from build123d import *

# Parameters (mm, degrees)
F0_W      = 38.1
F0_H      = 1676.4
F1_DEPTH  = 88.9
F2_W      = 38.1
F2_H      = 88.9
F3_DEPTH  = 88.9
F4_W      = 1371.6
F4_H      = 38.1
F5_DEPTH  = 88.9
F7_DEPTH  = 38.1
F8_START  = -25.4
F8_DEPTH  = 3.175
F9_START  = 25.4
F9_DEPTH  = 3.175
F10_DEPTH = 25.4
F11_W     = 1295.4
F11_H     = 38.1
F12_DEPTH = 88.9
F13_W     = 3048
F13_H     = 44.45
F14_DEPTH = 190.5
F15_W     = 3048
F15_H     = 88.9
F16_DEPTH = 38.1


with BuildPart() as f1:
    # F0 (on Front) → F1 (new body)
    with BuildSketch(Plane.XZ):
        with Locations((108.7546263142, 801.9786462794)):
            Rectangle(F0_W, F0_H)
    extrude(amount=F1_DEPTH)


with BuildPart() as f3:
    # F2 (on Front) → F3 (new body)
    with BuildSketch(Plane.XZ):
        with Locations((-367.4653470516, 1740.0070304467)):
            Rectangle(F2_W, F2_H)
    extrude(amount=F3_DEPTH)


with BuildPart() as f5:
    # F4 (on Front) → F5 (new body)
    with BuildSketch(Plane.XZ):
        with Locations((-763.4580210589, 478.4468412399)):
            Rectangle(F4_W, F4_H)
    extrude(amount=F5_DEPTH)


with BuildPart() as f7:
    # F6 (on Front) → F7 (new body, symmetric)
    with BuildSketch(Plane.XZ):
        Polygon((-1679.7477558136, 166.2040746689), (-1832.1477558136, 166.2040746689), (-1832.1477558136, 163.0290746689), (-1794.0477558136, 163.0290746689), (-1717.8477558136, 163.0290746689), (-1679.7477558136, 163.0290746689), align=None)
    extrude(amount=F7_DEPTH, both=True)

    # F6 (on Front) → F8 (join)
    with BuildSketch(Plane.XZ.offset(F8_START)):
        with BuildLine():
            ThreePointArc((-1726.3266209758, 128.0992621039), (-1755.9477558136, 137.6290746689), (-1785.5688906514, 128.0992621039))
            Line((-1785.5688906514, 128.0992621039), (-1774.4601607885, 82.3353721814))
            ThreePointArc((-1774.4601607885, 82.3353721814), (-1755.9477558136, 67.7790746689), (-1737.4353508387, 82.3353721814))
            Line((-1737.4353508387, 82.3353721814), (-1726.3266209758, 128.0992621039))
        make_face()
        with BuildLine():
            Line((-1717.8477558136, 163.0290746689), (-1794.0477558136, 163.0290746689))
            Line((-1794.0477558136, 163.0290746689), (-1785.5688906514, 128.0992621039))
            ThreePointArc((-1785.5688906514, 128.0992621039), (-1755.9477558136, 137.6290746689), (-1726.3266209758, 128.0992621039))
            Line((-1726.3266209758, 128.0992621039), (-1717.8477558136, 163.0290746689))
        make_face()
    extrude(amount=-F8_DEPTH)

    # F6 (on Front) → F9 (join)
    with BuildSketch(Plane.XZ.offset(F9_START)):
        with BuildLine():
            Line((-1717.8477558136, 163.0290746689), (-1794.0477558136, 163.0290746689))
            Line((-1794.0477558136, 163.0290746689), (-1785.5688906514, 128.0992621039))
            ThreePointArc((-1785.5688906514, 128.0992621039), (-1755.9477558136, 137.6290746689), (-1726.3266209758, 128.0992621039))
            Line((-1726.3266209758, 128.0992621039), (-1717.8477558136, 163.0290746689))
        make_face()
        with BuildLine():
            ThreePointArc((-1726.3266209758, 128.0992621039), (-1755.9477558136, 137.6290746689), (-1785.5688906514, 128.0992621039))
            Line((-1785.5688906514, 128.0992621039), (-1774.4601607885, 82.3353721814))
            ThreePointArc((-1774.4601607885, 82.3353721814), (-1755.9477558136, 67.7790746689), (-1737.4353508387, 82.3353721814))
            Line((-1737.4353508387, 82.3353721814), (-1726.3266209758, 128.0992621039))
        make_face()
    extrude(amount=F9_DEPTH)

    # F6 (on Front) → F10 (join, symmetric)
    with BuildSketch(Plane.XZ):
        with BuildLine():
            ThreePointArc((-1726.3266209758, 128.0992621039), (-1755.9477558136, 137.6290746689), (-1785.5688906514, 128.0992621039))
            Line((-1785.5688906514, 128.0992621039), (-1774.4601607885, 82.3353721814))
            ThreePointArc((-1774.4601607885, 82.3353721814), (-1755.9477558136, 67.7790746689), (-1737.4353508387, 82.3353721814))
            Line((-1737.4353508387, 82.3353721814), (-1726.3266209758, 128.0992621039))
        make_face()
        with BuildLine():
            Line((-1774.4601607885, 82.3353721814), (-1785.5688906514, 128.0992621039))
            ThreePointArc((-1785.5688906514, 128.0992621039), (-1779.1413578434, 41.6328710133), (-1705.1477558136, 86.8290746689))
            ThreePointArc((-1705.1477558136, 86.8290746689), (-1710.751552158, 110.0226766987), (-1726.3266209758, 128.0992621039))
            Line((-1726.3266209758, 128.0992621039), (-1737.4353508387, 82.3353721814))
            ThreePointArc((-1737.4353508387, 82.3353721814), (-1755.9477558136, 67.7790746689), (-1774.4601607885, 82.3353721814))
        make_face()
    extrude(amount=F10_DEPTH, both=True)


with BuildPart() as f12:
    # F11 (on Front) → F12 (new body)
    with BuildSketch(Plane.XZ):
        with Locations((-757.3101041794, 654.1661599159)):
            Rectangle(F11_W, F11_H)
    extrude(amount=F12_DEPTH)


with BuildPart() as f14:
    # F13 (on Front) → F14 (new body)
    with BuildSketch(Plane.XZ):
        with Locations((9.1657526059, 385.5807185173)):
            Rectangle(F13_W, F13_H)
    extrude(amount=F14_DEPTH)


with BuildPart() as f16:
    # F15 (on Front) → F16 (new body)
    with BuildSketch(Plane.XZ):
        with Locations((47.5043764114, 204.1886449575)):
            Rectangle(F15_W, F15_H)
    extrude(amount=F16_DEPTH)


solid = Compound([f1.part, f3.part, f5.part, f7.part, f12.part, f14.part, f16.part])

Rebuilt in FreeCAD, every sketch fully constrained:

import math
import FreeCAD as App
import Part
import Sketcher
from FreeCAD import Vector
Q = App.Units.Quantity

doc = App.newDocument("Part")
body = doc.addObject("PartDesign::Body", "Body")

sketch1 = doc.addObject("Sketcher::SketchObject", "Sketch")
body.addObject(sketch1)
sketch1.AttachmentSupport = (doc.XZ_Plane, [""])
sketch1.MapMode = "FlatFace"
sketch1.addGeometry(Part.LineSegment(Vector(89.704626, 1640.178646, 0), Vector(89.704626, -36.221354, 0)), False)
sketch1.addGeometry(Part.LineSegment(Vector(89.704626, -36.221354, 0), Vector(127.804626, -36.221354, 0)), False)
sketch1.addGeometry(Part.LineSegment(Vector(127.804626, -36.221354, 0), Vector(127.804626, 1640.178646, 0)), False)
sketch1.addGeometry(Part.LineSegment(Vector(127.804626, 1640.178646, 0), Vector(89.704626, 1640.178646, 0)), False)
sketch1.addConstraint(Sketcher.Constraint("Coincident", 0, 2, 1, 1))
sketch1.addConstraint(Sketcher.Constraint("Coincident", 1, 2, 2, 1))
sketch1.addConstraint(Sketcher.Constraint("Coincident", 2, 2, 3, 1))
sketch1.addConstraint(Sketcher.Constraint("Coincident", 3, 2, 0, 1))
sketch1.addConstraint(Sketcher.Constraint("Vertical", 0))
sketch1.addConstraint(Sketcher.Constraint("Horizontal", 1))
sketch1.addConstraint(Sketcher.Constraint("Vertical", 2))
sketch1.addConstraint(Sketcher.Constraint("Horizontal", 3))
sketch1.addConstraint(Sketcher.Constraint("DistanceY", 0, 2, 0, 1, Q("66 in")))
sketch1.addConstraint(Sketcher.Constraint("DistanceX", 1, 1, 1, 2, Q("1.5 in")))
sketch1.addConstraint(Sketcher.Constraint("DistanceX", -1, 1, 0, 2, 89.704626))
sketch1.addConstraint(Sketcher.Constraint("DistanceY", 0, 2, -1, 1, 36.221354))
pad1 = doc.addObject("PartDesign::Pad", "Pad")
body.addObject(pad1)
pad1.Profile = sketch1
pad1.Length = Q("3.5 in")
body2 = doc.addObject("PartDesign::Body", "Body001")

sketch2 = doc.addObject("Sketcher::SketchObject", "Sketch001")
body2.addObject(sketch2)
sketch2.AttachmentSupport = (doc.getObject("XZ_Plane001"), [""])
sketch2.MapMode = "FlatFace"
sketch2.addGeometry(Part.LineSegment(Vector(-386.515347, 1784.45703, 0), Vector(-386.515347, 1695.55703, 0)), False)
sketch2.addGeometry(Part.LineSegment(Vector(-386.515347, 1695.55703, 0), Vector(-348.415347, 1695.55703, 0)), False)
sketch2.addGeometry(Part.LineSegment(Vector(-348.415347, 1695.55703, 0), Vector(-348.415347, 1784.45703, 0)), False)
sketch2.addGeometry(Part.LineSegment(Vector(-348.415347, 1784.45703, 0), Vector(-386.515347, 1784.45703, 0)), False)
sketch2.addConstraint(Sketcher.Constraint("Coincident", 0, 2, 1, 1))
sketch2.addConstraint(Sketcher.Constraint("Coincident", 1, 2, 2, 1))
sketch2.addConstraint(Sketcher.Constraint("Coincident", 2, 2, 3, 1))
sketch2.addConstraint(Sketcher.Constraint("Coincident", 3, 2, 0, 1))
sketch2.addConstraint(Sketcher.Constraint("Vertical", 0))
sketch2.addConstraint(Sketcher.Constraint("Horizontal", 1))
sketch2.addConstraint(Sketcher.Constraint("Vertical", 2))
sketch2.addConstraint(Sketcher.Constraint("Horizontal", 3))
sketch2.addConstraint(Sketcher.Constraint("DistanceX", 1, 1, 1, 2, Q("1.5 in")))
sketch2.addConstraint(Sketcher.Constraint("DistanceY", 0, 2, 0, 1, Q("3.5 in")))
sketch2.addConstraint(Sketcher.Constraint("DistanceY", -1, 1, 0, 2, 1695.55703))
sketch2.addConstraint(Sketcher.Constraint("DistanceX", 0, 2, -1, 1, 386.515347))
pad2 = doc.addObject("PartDesign::Pad", "Pad001")
body2.addObject(pad2)
pad2.Profile = sketch2
pad2.Length = Q("3.5 in")
body3 = doc.addObject("PartDesign::Body", "Body002")

sketch3 = doc.addObject("Sketcher::SketchObject", "Sketch002")
body3.addObject(sketch3)
sketch3.AttachmentSupport = (doc.getObject("XZ_Plane002"), [""])
sketch3.MapMode = "FlatFace"
sketch3.addGeometry(Part.LineSegment(Vector(-1449.258021, 497.496841, 0), Vector(-1449.258021, 459.396841, 0)), False)
sketch3.addGeometry(Part.LineSegment(Vector(-1449.258021, 459.396841, 0), Vector(-77.658021, 459.396841, 0)), False)
sketch3.addGeometry(Part.LineSegment(Vector(-77.658021, 459.396841, 0), Vector(-77.658021, 497.496841, 0)), False)
sketch3.addGeometry(Part.LineSegment(Vector(-77.658021, 497.496841, 0), Vector(-1449.258021, 497.496841, 0)), False)
sketch3.addConstraint(Sketcher.Constraint("Coincident", 0, 2, 1, 1))
sketch3.addConstraint(Sketcher.Constraint("Coincident", 1, 2, 2, 1))
sketch3.addConstraint(Sketcher.Constraint("Coincident", 2, 2, 3, 1))
sketch3.addConstraint(Sketcher.Constraint("Coincident", 3, 2, 0, 1))
sketch3.addConstraint(Sketcher.Constraint("Vertical", 0))
sketch3.addConstraint(Sketcher.Constraint("Horizontal", 1))
sketch3.addConstraint(Sketcher.Constraint("Vertical", 2))
sketch3.addConstraint(Sketcher.Constraint("Horizontal", 3))
sketch3.addConstraint(Sketcher.Constraint("DistanceX", 1, 1, 1, 2, Q("54 in")))
sketch3.addConstraint(Sketcher.Constraint("DistanceY", 0, 2, 0, 1, Q("1.5 in")))
sketch3.addConstraint(Sketcher.Constraint("DistanceX", 0, 2, -1, 1, 1449.258021))
sketch3.addConstraint(Sketcher.Constraint("DistanceY", -1, 1, 0, 2, 459.396841))
pad3 = doc.addObject("PartDesign::Pad", "Pad002")
body3.addObject(pad3)
pad3.Profile = sketch3
pad3.Length = Q("3.5 in")
body4 = doc.addObject("PartDesign::Body", "Body003")

sketch4 = doc.addObject("Sketcher::SketchObject", "Sketch003")
body4.addObject(sketch4)
sketch4.AttachmentSupport = (doc.getObject("XZ_Plane003"), [""])
sketch4.MapMode = "FlatFace"
sketch4.addGeometry(Part.LineSegment(Vector(-1679.747756, 166.204075, 0), Vector(-1832.147756, 166.204075, 0)), False)
sketch4.addGeometry(Part.LineSegment(Vector(-1832.147756, 166.204075, 0), Vector(-1832.147756, 163.029075, 0)), False)
sketch4.addGeometry(Part.LineSegment(Vector(-1832.147756, 163.029075, 0), Vector(-1679.747756, 163.029075, 0)), False)
sketch4.addGeometry(Part.LineSegment(Vector(-1679.747756, 163.029075, 0), Vector(-1679.747756, 166.204075, 0)), False)
sketch4.addConstraint(Sketcher.Constraint("Coincident", 0, 2, 1, 1))
sketch4.addConstraint(Sketcher.Constraint("Coincident", 1, 2, 2, 1))
sketch4.addConstraint(Sketcher.Constraint("Coincident", 2, 2, 3, 1))
sketch4.addConstraint(Sketcher.Constraint("Coincident", 3, 2, 0, 1))
sketch4.addConstraint(Sketcher.Constraint("Horizontal", 0))
sketch4.addConstraint(Sketcher.Constraint("Vertical", 1))
sketch4.addConstraint(Sketcher.Constraint("Horizontal", 2))
sketch4.addConstraint(Sketcher.Constraint("Vertical", 3))
sketch4.addConstraint(Sketcher.Constraint("DistanceX", 0, 2, 0, 1, Q("6 in")))
sketch4.addConstraint(Sketcher.Constraint("DistanceY", 1, 2, 1, 1, Q("0.125 in")))
sketch4.addConstraint(Sketcher.Constraint("DistanceX", 0, 2, -1, 1, 1832.147756))
sketch4.addConstraint(Sketcher.Constraint("DistanceY", -1, 1, 0, 2, 166.204075))
pad4 = doc.addObject("PartDesign::Pad", "Pad003")
body4.addObject(pad4)
pad4.Profile = sketch4
pad4.Length = Q("3 in")
pad4.Midplane = True

sketch5 = doc.addObject("Sketcher::SketchObject", "Sketch004")
body4.addObject(sketch5)
sketch5.AttachmentSupport = (doc.getObject("XZ_Plane003"), [""])
sketch5.MapMode = "FlatFace"
sketch5.AttachmentOffset = App.Placement(Vector(0, 0, -1 * 25.4), App.Rotation())
sketch5.addGeometry(Part.LineSegment(Vector(-1785.568891, 128.099262, 0), Vector(-1774.460161, 82.335372, 0)), False)
sketch5.addGeometry(Part.ArcOfCircle(Part.Circle(Vector(-1755.947756, 86.829075, 0), Vector(0, 0, 1), 19.05), math.radians(-166.355915), math.radians(-13.644085)), False)
sketch5.addGeometry(Part.LineSegment(Vector(-1737.435351, 82.335372, 0), Vector(-1726.326621, 128.099262, 0)), False)
sketch5.addGeometry(Part.LineSegment(Vector(-1726.326621, 128.099262, 0), Vector(-1717.847756, 163.029075, 0)), False)
sketch5.addGeometry(Part.LineSegment(Vector(-1717.847756, 163.029075, 0), Vector(-1794.047756, 163.029075, 0)), False)
sketch5.addGeometry(Part.LineSegment(Vector(-1794.047756, 163.029075, 0), Vector(-1785.568891, 128.099262, 0)), False)
sketch5.addConstraint(Sketcher.Constraint("Tangent", 0, 2, 1, 1))
sketch5.addConstraint(Sketcher.Constraint("Tangent", 1, 2, 2, 1))
sketch5.addConstraint(Sketcher.Constraint("Coincident", 2, 2, 3, 1))
sketch5.addConstraint(Sketcher.Constraint("Coincident", 3, 2, 4, 1))
sketch5.addConstraint(Sketcher.Constraint("Coincident", 4, 2, 5, 1))
sketch5.addConstraint(Sketcher.Constraint("Coincident", 5, 2, 0, 1))
sketch5.addConstraint(Sketcher.Constraint("Horizontal", 4))
sketch5.addConstraint(Sketcher.Constraint("Parallel", 2, 3))
sketch5.addConstraint(Sketcher.Constraint("Parallel", 0, 5))
sketch5.addConstraint(Sketcher.Constraint("Horizontal", 0, 2, 1, 2))
sketch5.addConstraint(Sketcher.Constraint("Horizontal", 2, 2, 5, 2))
sketch5.addConstraint(Sketcher.Constraint("DistanceX", 4, 2, 4, 1, Q("3 in")))
sketch5.addConstraint(Sketcher.Constraint("Radius", 1, Q("0.75 in")))
sketch5.addConstraint(Sketcher.Constraint("DistanceY", 1, 3, 3, 2, Q("3 in")))
sketch5.addConstraint(Sketcher.Constraint("Distance", 0, 47.09286))
sketch5.addConstraint(Sketcher.Constraint("DistanceX", 0, 2, -1, 1, 1774.460161))
sketch5.addConstraint(Sketcher.Constraint("DistanceY", -1, 1, 1, 3, 86.829075))
pad5 = doc.addObject("PartDesign::Pad", "Pad004")
body4.addObject(pad5)
pad5.Profile = sketch5
pad5.Length = Q("0.125 in")
pad5.Reversed = True

sketch6 = doc.addObject("Sketcher::SketchObject", "Sketch005")
body4.addObject(sketch6)
sketch6.AttachmentSupport = (doc.getObject("XZ_Plane003"), [""])
sketch6.MapMode = "FlatFace"
sketch6.AttachmentOffset = App.Placement(Vector(0, 0, 1 * 25.4), App.Rotation())
sketch6.addGeometry(Part.LineSegment(Vector(-1717.847756, 163.029075, 0), Vector(-1794.047756, 163.029075, 0)), False)
sketch6.addGeometry(Part.LineSegment(Vector(-1794.047756, 163.029075, 0), Vector(-1785.568891, 128.099262, 0)), False)
sketch6.addGeometry(Part.LineSegment(Vector(-1785.568891, 128.099262, 0), Vector(-1774.460161, 82.335372, 0)), False)
sketch6.addGeometry(Part.ArcOfCircle(Part.Circle(Vector(-1755.947756, 86.829075, 0), Vector(0, 0, 1), 19.05), math.radians(-166.355915), math.radians(-13.644085)), False)
sketch6.addGeometry(Part.LineSegment(Vector(-1737.435351, 82.335372, 0), Vector(-1726.326621, 128.099262, 0)), False)
sketch6.addGeometry(Part.LineSegment(Vector(-1726.326621, 128.099262, 0), Vector(-1717.847756, 163.029075, 0)), False)
sketch6.addConstraint(Sketcher.Constraint("Coincident", 0, 2, 1, 1))
sketch6.addConstraint(Sketcher.Constraint("Coincident", 1, 2, 2, 1))
sketch6.addConstraint(Sketcher.Constraint("Tangent", 2, 2, 3, 1))
sketch6.addConstraint(Sketcher.Constraint("Tangent", 3, 2, 4, 1))
sketch6.addConstraint(Sketcher.Constraint("Coincident", 4, 2, 5, 1))
sketch6.addConstraint(Sketcher.Constraint("Coincident", 5, 2, 0, 1))
sketch6.addConstraint(Sketcher.Constraint("Horizontal", 0))
sketch6.addConstraint(Sketcher.Constraint("Parallel", 1, 2))
sketch6.addConstraint(Sketcher.Constraint("Parallel", 4, 5))
sketch6.addConstraint(Sketcher.Constraint("Horizontal", 2, 2, 3, 2))
sketch6.addConstraint(Sketcher.Constraint("Horizontal", 1, 2, 4, 2))
sketch6.addConstraint(Sketcher.Constraint("DistanceX", 0, 2, 0, 1, Q("3 in")))
sketch6.addConstraint(Sketcher.Constraint("Radius", 3, Q("0.75 in")))
sketch6.addConstraint(Sketcher.Constraint("DistanceY", 3, 3, 0, 2, Q("3 in")))
sketch6.addConstraint(Sketcher.Constraint("Distance", 2, 47.09286))
sketch6.addConstraint(Sketcher.Constraint("DistanceX", 1, 2, -1, 1, 1785.568891))
sketch6.addConstraint(Sketcher.Constraint("DistanceY", -1, 1, 3, 3, 86.829075))
pad6 = doc.addObject("PartDesign::Pad", "Pad005")
body4.addObject(pad6)
pad6.Profile = sketch6
pad6.Length = Q("0.125 in")

sketch7 = doc.addObject("Sketcher::SketchObject", "Sketch006")
body4.addObject(sketch7)
sketch7.AttachmentSupport = (doc.getObject("XZ_Plane003"), [""])
sketch7.MapMode = "FlatFace"
sketch7.addGeometry(Part.ArcOfCircle(Part.Circle(Vector(-1755.947756, 86.829075, 0), Vector(0, 0, 1), 50.8), math.radians(54.331602), math.radians(360)), False)
sketch7.addGeometry(Part.ArcOfCircle(Part.Circle(Vector(-1755.947756, 86.829075, 0), Vector(0, 0, 1), 50.8), math.radians(0), math.radians(54.331602)), False)
sketch7.addConstraint(Sketcher.Constraint("Tangent", 0, 1, 1, 2))
sketch7.addConstraint(Sketcher.Constraint("Coincident", 1, 1, 0, 2))
sketch7.addConstraint(Sketcher.Constraint("Horizontal", 0, 3, 1, 1))
sketch7.addConstraint(Sketcher.Constraint("Radius", 0, Q("2 in")))
sketch7.addConstraint(Sketcher.Constraint("DistanceX", 0, 1, -1, 1, 1726.326621))
sketch7.addConstraint(Sketcher.Constraint("DistanceX", 0, 3, -1, 1, 1755.947756))
sketch7.addConstraint(Sketcher.Constraint("DistanceY", -1, 1, 0, 3, 86.829075))
pad7 = doc.addObject("PartDesign::Pad", "Pad006")
body4.addObject(pad7)
pad7.Profile = sketch7
pad7.Length = Q("2 in")
pad7.Midplane = True
body5 = doc.addObject("PartDesign::Body", "Body004")

sketch8 = doc.addObject("Sketcher::SketchObject", "Sketch007")
body5.addObject(sketch8)
sketch8.AttachmentSupport = (doc.getObject("XZ_Plane004"), [""])
sketch8.MapMode = "FlatFace"
sketch8.addGeometry(Part.LineSegment(Vector(-1405.010104, 673.21616, 0), Vector(-1405.010104, 635.11616, 0)), False)
sketch8.addGeometry(Part.LineSegment(Vector(-1405.010104, 635.11616, 0), Vector(-109.610104, 635.11616, 0)), False)
sketch8.addGeometry(Part.LineSegment(Vector(-109.610104, 635.11616, 0), Vector(-109.610104, 673.21616, 0)), False)
sketch8.addGeometry(Part.LineSegment(Vector(-109.610104, 673.21616, 0), Vector(-1405.010104, 673.21616, 0)), False)
sketch8.addConstraint(Sketcher.Constraint("Coincident", 0, 2, 1, 1))
sketch8.addConstraint(Sketcher.Constraint("Coincident", 1, 2, 2, 1))
sketch8.addConstraint(Sketcher.Constraint("Coincident", 2, 2, 3, 1))
sketch8.addConstraint(Sketcher.Constraint("Coincident", 3, 2, 0, 1))
sketch8.addConstraint(Sketcher.Constraint("Vertical", 0))
sketch8.addConstraint(Sketcher.Constraint("Horizontal", 1))
sketch8.addConstraint(Sketcher.Constraint("Vertical", 2))
sketch8.addConstraint(Sketcher.Constraint("Horizontal", 3))
sketch8.addConstraint(Sketcher.Constraint("DistanceX", 1, 1, 1, 2, Q("51 in")))
sketch8.addConstraint(Sketcher.Constraint("DistanceY", 0, 2, 0, 1, Q("1.5 in")))
sketch8.addConstraint(Sketcher.Constraint("DistanceY", -1, 1, 0, 2, 635.11616))
sketch8.addConstraint(Sketcher.Constraint("DistanceX", 0, 2, -1, 1, 1405.010104))
pad8 = doc.addObject("PartDesign::Pad", "Pad007")
body5.addObject(pad8)
pad8.Profile = sketch8
pad8.Length = Q("3.5 in")
body6 = doc.addObject("PartDesign::Body", "Body005")

sketch9 = doc.addObject("Sketcher::SketchObject", "Sketch008")
body6.addObject(sketch9)
sketch9.AttachmentSupport = (doc.getObject("XZ_Plane005"), [""])
sketch9.MapMode = "FlatFace"
sketch9.addGeometry(Part.LineSegment(Vector(-1514.834247, 407.805719, 0), Vector(-1514.834247, 363.355719, 0)), False)
sketch9.addGeometry(Part.LineSegment(Vector(-1514.834247, 363.355719, 0), Vector(1533.165753, 363.355719, 0)), False)
sketch9.addGeometry(Part.LineSegment(Vector(1533.165753, 363.355719, 0), Vector(1533.165753, 407.805719, 0)), False)
sketch9.addGeometry(Part.LineSegment(Vector(1533.165753, 407.805719, 0), Vector(-1514.834247, 407.805719, 0)), False)
sketch9.addConstraint(Sketcher.Constraint("Coincident", 0, 2, 1, 1))
sketch9.addConstraint(Sketcher.Constraint("Coincident", 1, 2, 2, 1))
sketch9.addConstraint(Sketcher.Constraint("Coincident", 2, 2, 3, 1))
sketch9.addConstraint(Sketcher.Constraint("Coincident", 3, 2, 0, 1))
sketch9.addConstraint(Sketcher.Constraint("Vertical", 0))
sketch9.addConstraint(Sketcher.Constraint("Horizontal", 1))
sketch9.addConstraint(Sketcher.Constraint("Vertical", 2))
sketch9.addConstraint(Sketcher.Constraint("Horizontal", 3))
sketch9.addConstraint(Sketcher.Constraint("DistanceX", 1, 1, 1, 2, Q("120 in")))
sketch9.addConstraint(Sketcher.Constraint("DistanceY", 0, 2, 0, 1, Q("1.75 in")))
sketch9.addConstraint(Sketcher.Constraint("DistanceY", -1, 1, 0, 2, 363.355719))
sketch9.addConstraint(Sketcher.Constraint("DistanceX", 0, 2, -1, 1, 1514.834247))
pad9 = doc.addObject("PartDesign::Pad", "Pad008")
body6.addObject(pad9)
pad9.Profile = sketch9
pad9.Length = Q("7.5 in")
body7 = doc.addObject("PartDesign::Body", "Body006")

sketch10 = doc.addObject("Sketcher::SketchObject", "Sketch009")
body7.addObject(sketch10)
sketch10.AttachmentSupport = (doc.getObject("XZ_Plane006"), [""])
sketch10.MapMode = "FlatFace"
sketch10.addGeometry(Part.LineSegment(Vector(-1476.495624, 248.638645, 0), Vector(-1476.495624, 159.738645, 0)), False)
sketch10.addGeometry(Part.LineSegment(Vector(-1476.495624, 159.738645, 0), Vector(1571.504376, 159.738645, 0)), False)
sketch10.addGeometry(Part.LineSegment(Vector(1571.504376, 159.738645, 0), Vector(1571.504376, 248.638645, 0)), False)
sketch10.addGeometry(Part.LineSegment(Vector(1571.504376, 248.638645, 0), Vector(-1476.495624, 248.638645, 0)), False)
sketch10.addConstraint(Sketcher.Constraint("Coincident", 0, 2, 1, 1))
sketch10.addConstraint(Sketcher.Constraint("Coincident", 1, 2, 2, 1))
sketch10.addConstraint(Sketcher.Constraint("Coincident", 2, 2, 3, 1))
sketch10.addConstraint(Sketcher.Constraint("Coincident", 3, 2, 0, 1))
sketch10.addConstraint(Sketcher.Constraint("Vertical", 0))
sketch10.addConstraint(Sketcher.Constraint("Horizontal", 1))
sketch10.addConstraint(Sketcher.Constraint("Vertical", 2))
sketch10.addConstraint(Sketcher.Constraint("Horizontal", 3))
sketch10.addConstraint(Sketcher.Constraint("DistanceX", 1, 1, 1, 2, Q("120 in")))
sketch10.addConstraint(Sketcher.Constraint("DistanceY", 0, 2, 0, 1, Q("3.5 in")))
sketch10.addConstraint(Sketcher.Constraint("DistanceX", 0, 2, -1, 1, 1476.495624))
sketch10.addConstraint(Sketcher.Constraint("DistanceY", -1, 1, 0, 2, 159.738645))
pad10 = doc.addObject("PartDesign::Pad", "Pad009")
body7.addObject(pad10)
pad10.Profile = sketch10
pad10.Length = Q("1.5 in")

doc.recompute()
